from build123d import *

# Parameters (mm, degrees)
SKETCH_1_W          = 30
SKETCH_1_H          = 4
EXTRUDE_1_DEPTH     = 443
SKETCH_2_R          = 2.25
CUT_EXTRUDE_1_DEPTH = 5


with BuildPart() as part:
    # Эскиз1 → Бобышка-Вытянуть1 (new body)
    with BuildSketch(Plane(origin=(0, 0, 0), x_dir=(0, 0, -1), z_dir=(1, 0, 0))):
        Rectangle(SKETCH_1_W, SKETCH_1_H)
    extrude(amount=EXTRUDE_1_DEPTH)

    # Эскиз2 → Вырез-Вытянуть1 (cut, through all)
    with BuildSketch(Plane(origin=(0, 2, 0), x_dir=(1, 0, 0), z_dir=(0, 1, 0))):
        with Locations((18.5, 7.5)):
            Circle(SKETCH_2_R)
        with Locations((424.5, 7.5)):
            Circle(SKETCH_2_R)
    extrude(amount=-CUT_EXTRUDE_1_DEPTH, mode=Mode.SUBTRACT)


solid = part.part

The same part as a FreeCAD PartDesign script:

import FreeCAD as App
import Part
import Sketcher
Q = App.Units.Quantity


def add_polygon(sketch, points):
    """Adds a closed chain of lines whose ends are joined by coincident constraints."""
    first, n = sketch.GeometryCount, len(points)
    for a, b in zip(points, points[1:] + points[:1]):
        sketch.addGeometry(Part.LineSegment(App.Vector(*a, 0), App.Vector(*b, 0)), False)
    for i in range(n):
        sketch.addConstraint(Sketcher.Constraint("Coincident", first + i, 2, first + (i + 1) % n, 1))

doc = App.newDocument("Part")
body = doc.addObject("PartDesign::Body", "Body")

# Sketch on YZ plane
sketch1 = doc.addObject("Sketcher::SketchObject", "Sketch")
body.addObject(sketch1)
sketch1.AttachmentSupport = (doc.YZ_Plane, [""])
sketch1.MapMode = "FlatFace"
add_polygon(sketch1, [(2, 15), (-2, 15), (-2, -15), (2, -15)])  # lines 0-3
sketch1.addConstraint(Sketcher.Constraint("Horizontal", 0))
sketch1.addConstraint(Sketcher.Constraint("Vertical", 1))
sketch1.addConstraint(Sketcher.Constraint("Horizontal", 2))
sketch1.addConstraint(Sketcher.Constraint("Vertical", 3))
sketch1.addConstraint(Sketcher.Constraint("Symmetric", 0, 2, 2, 2, -1, 1))
sketch1.addConstraint(Sketcher.Constraint("DistanceX", 0, 2, 0, 1, Q("4 mm")))
sketch1.addConstraint(Sketcher.Constraint("DistanceY", 1, 2, 1, 1, Q("30 mm")))
pad1 = doc.addObject("PartDesign::Pad", "Pad")
body.addObject(pad1)
pad1.Profile = sketch1
pad1.Length = 443

# Sketch on XZ plane
sketch2 = doc.addObject("Sketcher::SketchObject", "Sketch001")
body.addObject(sketch2)
sketch2.AttachmentSupport = (doc.XZ_Plane, [""])
sketch2.MapMode = "FlatFace"
sketch2.AttachmentOffset = App.Placement(App.Vector(0, 0, -2), App.Rotation())
sketch2.addGeometry(Part.Circle(App.Vector(18.5, -7.5, 0), App.Vector(0, 0, 1), 2.25), False)
sketch2.addGeometry(Part.Circle(App.Vector(424.5, -7.5, 0), App.Vector(0, 0, 1), 2.25), False)
sketch2.addConstraint(Sketcher.Constraint("Equal", 0, 1))
sketch2.addConstraint(Sketcher.Constraint("Horizontal", 0, 3, 1, 3))
sketch2.addConstraint(Sketcher.Constraint("Diameter", 0, Q("4.5 mm")))
sketch2.addConstraint(Sketcher.Constraint("DistanceX", 0, 3, 1, 3, Q("406 mm")))
sketch2.addConstraint(Sketcher.Constraint("DistanceX", -1, 1, 0, 3, Q("18.5 mm")))
sketch2.addConstraint(Sketcher.Constraint("DistanceY", 0, 3, -1, 1, Q("7.5 mm")))
pocket1 = doc.addObject("PartDesign::Pocket", "Pocket")
body.addObject(pocket1)
pocket1.Profile = sketch2
pocket1.Type = "ThroughAll"
pocket1.Reversed = True

doc.recompute()
